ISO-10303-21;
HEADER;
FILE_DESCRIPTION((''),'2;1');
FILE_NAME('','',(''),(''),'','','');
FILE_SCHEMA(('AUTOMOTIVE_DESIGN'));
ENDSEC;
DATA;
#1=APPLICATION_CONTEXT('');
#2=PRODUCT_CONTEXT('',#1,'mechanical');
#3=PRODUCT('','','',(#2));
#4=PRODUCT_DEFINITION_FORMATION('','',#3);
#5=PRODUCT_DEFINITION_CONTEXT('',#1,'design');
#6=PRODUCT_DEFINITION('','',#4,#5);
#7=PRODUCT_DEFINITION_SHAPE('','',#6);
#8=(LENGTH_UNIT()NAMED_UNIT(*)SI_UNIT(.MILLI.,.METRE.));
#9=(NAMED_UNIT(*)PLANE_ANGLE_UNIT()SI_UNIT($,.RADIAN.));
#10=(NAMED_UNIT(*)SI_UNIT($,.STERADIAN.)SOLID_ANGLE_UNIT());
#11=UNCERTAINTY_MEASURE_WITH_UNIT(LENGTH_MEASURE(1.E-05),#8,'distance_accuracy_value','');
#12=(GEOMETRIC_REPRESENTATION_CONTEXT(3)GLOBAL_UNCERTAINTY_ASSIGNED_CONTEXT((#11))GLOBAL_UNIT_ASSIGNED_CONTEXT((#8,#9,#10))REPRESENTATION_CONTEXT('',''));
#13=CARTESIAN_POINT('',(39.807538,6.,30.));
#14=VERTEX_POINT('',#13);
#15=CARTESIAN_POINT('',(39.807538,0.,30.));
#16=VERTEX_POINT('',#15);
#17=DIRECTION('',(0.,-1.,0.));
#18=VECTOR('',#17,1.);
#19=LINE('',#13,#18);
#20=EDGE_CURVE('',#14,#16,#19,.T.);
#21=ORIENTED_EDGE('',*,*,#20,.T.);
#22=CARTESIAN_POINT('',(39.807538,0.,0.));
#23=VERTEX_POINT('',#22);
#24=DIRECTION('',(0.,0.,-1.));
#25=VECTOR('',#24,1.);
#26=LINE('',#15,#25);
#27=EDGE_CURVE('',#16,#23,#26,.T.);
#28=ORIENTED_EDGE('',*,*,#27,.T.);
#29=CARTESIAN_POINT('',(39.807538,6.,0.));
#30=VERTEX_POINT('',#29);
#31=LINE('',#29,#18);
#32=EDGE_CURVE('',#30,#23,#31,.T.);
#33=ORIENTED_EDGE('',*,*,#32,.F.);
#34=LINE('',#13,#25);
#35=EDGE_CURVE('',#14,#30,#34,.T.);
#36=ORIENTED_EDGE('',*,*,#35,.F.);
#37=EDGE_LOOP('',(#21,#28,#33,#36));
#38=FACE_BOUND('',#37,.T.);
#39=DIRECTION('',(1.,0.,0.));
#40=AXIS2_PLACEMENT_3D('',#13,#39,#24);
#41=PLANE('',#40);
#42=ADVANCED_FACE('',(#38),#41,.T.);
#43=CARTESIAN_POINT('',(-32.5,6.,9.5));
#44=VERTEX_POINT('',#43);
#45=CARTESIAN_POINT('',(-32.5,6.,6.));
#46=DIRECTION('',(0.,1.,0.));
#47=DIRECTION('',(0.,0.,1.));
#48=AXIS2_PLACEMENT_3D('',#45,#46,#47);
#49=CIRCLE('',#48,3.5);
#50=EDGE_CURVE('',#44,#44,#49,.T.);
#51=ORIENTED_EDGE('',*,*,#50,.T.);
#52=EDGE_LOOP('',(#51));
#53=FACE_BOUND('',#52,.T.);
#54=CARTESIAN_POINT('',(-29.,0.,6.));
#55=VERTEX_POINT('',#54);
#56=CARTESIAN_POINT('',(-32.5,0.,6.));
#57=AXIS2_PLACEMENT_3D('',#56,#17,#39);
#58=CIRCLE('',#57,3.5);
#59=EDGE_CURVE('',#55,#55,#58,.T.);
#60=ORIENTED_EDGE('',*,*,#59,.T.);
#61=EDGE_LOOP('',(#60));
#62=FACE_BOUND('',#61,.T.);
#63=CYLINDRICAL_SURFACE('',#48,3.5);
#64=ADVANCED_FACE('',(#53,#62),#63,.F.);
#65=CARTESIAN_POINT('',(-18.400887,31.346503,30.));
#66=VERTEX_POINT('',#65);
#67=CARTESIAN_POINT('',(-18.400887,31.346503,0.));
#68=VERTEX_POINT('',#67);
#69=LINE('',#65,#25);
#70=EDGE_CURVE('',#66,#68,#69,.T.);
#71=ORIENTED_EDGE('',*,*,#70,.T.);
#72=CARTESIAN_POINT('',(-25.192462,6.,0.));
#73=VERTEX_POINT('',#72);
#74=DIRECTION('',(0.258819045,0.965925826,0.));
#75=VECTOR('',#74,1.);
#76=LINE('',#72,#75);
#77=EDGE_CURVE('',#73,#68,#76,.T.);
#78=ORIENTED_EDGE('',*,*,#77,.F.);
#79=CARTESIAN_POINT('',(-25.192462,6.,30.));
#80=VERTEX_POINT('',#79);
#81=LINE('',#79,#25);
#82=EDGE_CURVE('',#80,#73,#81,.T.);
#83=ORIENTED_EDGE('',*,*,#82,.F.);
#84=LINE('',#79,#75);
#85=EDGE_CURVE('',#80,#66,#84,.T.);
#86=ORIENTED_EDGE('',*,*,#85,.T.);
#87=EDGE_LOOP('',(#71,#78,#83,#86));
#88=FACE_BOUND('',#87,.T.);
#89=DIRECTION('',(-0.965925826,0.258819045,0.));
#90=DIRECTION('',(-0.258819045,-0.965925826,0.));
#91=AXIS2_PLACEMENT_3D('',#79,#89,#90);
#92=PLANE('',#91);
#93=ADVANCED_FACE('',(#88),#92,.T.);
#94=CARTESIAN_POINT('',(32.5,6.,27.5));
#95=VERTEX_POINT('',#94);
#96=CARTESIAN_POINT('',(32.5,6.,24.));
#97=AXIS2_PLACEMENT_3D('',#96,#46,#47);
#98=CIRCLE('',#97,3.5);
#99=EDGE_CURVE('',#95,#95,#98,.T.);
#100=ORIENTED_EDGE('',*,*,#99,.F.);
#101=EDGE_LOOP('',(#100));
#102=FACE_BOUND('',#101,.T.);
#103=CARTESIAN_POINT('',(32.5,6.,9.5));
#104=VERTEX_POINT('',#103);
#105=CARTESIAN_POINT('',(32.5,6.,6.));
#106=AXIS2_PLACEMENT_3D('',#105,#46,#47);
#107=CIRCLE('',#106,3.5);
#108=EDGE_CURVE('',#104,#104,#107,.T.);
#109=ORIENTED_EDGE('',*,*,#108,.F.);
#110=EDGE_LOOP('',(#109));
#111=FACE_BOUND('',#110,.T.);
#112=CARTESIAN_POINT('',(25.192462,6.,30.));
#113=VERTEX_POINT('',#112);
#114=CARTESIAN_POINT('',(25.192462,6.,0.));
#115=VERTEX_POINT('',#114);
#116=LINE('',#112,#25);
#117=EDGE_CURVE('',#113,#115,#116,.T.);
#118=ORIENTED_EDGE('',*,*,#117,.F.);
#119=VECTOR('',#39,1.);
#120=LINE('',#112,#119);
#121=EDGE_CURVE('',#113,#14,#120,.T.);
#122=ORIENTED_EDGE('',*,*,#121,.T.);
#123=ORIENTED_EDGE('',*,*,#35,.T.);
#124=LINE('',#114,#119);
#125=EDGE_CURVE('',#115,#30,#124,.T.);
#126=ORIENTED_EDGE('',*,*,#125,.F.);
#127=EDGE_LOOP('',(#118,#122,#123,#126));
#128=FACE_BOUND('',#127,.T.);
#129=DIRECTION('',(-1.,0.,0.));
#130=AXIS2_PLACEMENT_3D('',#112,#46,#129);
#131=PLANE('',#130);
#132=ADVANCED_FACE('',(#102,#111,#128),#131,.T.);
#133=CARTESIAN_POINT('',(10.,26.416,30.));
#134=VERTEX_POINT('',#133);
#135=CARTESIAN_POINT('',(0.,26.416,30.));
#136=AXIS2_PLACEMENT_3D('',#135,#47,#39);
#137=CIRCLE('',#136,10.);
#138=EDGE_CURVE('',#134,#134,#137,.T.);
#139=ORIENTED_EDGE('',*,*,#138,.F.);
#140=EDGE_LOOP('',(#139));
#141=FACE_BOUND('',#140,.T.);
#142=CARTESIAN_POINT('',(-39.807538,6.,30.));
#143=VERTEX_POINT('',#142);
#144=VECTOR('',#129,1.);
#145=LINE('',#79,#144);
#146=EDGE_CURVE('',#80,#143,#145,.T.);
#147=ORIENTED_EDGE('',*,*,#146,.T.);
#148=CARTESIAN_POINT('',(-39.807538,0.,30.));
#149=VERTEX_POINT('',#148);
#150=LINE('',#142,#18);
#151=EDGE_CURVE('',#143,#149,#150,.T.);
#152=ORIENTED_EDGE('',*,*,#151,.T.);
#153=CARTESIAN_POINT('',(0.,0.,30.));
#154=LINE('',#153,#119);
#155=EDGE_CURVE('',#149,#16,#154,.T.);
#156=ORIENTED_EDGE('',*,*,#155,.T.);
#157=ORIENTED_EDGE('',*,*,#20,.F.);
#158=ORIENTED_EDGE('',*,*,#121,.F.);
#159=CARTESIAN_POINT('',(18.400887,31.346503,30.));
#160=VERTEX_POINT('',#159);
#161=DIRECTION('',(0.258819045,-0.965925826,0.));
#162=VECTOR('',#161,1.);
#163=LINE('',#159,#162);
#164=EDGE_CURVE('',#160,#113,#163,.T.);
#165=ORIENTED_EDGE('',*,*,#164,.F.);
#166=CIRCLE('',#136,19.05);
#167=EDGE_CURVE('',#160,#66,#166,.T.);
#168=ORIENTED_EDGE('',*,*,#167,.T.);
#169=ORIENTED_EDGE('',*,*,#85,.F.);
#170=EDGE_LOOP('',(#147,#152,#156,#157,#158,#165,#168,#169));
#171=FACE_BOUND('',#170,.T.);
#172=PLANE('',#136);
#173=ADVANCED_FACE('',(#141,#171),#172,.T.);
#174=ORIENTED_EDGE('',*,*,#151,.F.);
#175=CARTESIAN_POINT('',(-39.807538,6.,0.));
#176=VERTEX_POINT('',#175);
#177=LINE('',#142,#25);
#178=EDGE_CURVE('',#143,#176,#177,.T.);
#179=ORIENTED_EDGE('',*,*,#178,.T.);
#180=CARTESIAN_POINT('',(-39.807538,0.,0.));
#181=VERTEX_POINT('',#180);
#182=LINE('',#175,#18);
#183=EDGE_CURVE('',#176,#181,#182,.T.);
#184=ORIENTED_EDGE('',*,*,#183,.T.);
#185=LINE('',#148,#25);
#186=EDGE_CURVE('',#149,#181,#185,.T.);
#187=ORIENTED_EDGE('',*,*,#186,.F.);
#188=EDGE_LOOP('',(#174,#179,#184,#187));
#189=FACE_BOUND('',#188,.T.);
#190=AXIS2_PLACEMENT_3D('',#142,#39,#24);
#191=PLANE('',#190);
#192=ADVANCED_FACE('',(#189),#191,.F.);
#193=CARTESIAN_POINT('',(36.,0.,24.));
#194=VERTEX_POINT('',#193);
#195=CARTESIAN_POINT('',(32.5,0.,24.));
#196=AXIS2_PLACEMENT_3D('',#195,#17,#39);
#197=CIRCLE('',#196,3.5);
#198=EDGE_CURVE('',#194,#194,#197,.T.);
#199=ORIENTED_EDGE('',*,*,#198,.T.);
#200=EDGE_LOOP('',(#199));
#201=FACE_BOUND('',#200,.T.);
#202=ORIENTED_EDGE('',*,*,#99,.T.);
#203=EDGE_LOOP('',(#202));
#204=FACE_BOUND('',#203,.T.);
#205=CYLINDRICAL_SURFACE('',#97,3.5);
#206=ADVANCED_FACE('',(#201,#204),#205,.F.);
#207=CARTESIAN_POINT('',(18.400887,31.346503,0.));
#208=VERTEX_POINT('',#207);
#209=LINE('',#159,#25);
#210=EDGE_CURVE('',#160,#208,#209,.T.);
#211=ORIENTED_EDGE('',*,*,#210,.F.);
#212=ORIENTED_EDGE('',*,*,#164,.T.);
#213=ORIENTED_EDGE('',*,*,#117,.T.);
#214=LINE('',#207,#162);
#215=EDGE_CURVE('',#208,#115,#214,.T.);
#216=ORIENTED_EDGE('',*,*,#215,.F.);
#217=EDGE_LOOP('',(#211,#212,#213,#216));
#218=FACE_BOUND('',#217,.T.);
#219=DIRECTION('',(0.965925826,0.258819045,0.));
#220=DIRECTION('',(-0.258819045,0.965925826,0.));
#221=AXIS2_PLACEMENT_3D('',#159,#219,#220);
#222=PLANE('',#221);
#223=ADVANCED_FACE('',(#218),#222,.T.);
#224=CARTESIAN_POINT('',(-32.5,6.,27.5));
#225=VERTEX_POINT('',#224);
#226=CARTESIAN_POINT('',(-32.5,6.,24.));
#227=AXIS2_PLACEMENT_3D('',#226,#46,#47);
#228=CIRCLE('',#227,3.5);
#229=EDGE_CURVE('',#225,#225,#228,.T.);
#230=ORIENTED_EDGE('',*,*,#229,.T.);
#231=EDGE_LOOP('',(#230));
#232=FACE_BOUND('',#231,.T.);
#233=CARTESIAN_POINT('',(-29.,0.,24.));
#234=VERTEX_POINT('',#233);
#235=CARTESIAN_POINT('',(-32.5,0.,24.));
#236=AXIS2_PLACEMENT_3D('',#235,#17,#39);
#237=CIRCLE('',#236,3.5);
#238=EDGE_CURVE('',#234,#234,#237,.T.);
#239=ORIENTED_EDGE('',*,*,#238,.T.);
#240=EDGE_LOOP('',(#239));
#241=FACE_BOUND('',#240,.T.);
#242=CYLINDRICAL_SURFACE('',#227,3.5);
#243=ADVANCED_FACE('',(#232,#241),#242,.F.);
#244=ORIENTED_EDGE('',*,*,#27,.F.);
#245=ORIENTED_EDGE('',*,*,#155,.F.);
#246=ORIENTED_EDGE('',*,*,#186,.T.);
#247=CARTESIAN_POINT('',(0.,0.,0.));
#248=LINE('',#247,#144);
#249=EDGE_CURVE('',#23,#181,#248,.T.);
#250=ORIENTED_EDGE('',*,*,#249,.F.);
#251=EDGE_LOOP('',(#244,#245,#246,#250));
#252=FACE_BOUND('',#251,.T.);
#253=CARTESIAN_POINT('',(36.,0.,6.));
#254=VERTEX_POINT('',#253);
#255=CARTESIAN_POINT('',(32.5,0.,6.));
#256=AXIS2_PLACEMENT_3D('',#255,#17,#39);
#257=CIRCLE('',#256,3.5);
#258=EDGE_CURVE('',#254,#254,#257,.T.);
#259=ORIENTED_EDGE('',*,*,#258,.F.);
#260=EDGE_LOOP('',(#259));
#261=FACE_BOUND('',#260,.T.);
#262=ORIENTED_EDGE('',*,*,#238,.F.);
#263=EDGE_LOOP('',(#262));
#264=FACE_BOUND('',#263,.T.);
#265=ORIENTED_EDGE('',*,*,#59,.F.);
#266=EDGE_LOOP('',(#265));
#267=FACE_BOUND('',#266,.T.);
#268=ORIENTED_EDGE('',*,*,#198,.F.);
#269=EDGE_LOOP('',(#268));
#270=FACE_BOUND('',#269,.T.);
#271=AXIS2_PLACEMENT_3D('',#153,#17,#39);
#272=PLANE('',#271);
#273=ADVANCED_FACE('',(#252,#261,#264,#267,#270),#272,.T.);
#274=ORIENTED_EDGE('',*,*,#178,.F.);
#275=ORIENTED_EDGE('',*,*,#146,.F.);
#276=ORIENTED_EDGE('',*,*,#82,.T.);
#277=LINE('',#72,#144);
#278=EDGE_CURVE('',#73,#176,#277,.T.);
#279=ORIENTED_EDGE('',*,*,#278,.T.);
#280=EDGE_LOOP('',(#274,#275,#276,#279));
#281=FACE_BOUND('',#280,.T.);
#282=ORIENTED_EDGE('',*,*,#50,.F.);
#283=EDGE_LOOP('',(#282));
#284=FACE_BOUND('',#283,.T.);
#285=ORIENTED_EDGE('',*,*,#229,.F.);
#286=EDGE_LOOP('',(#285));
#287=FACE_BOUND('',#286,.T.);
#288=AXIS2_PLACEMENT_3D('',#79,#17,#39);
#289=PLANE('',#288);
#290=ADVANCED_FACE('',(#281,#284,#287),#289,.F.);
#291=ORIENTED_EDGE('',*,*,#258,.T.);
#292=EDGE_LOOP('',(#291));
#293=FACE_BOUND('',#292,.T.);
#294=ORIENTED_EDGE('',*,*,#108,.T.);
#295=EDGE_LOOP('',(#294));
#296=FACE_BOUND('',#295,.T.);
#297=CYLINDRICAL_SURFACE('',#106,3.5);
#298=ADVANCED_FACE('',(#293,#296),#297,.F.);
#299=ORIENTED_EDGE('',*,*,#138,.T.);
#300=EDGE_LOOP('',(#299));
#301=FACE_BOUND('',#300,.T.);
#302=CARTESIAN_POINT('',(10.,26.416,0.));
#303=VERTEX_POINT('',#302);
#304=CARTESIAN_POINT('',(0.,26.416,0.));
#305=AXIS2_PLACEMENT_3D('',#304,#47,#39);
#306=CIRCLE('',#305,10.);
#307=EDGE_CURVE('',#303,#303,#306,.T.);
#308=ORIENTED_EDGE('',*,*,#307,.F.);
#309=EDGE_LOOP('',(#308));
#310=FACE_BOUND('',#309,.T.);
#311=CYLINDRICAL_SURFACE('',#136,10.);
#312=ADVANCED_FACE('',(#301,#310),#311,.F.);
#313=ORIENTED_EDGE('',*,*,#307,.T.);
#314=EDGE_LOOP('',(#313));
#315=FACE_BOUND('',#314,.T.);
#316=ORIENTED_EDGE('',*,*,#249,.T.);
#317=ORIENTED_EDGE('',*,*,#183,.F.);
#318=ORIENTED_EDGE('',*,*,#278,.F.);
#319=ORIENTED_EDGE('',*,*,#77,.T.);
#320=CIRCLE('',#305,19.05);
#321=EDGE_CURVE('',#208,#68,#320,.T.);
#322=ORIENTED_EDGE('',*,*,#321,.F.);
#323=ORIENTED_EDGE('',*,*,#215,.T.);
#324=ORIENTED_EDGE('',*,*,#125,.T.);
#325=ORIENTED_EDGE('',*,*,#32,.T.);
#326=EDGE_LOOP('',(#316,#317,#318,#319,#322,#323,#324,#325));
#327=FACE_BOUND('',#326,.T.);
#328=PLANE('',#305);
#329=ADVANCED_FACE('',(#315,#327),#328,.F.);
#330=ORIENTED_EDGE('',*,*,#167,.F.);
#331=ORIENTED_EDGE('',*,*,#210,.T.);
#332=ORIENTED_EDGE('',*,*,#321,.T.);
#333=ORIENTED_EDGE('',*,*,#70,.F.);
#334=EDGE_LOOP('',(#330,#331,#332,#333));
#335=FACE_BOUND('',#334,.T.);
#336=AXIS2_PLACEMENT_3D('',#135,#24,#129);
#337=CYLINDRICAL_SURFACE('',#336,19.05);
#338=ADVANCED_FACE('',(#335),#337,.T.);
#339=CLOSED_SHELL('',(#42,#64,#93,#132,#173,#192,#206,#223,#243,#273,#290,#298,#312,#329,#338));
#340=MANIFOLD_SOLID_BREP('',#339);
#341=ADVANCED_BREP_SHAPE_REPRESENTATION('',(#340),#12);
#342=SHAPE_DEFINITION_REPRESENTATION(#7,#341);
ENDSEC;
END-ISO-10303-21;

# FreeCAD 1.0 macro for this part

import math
import FreeCAD as App
import Part
import Sketcher
Q = App.Units.Quantity


def add_polygon(sketch, points):
    """Adds a closed chain of lines whose ends are joined by coincident constraints."""
    first, n = sketch.GeometryCount, len(points)
    for a, b in zip(points, points[1:] + points[:1]):
        sketch.addGeometry(Part.LineSegment(App.Vector(*a, 0), App.Vector(*b, 0)), False)
    for i in range(n):
        sketch.addConstraint(Sketcher.Constraint("Coincident", first + i, 2, first + (i + 1) % n, 1))

doc = App.newDocument("Part")
body = doc.addObject("PartDesign::Body", "Body")

sketch1 = body.newObject("Sketcher::SketchObject", "Sketch")
sketch1.AttachmentSupport = (doc.getObject("XY_Plane"), [""])
sketch1.MapMode = "FlatFace"
sketch1.addGeometry([
    Part.LineSegment(App.Vector(-40, 6, 0), App.Vector(-40, 0, 0)),
    Part.LineSegment(App.Vector(-40, 0, 0), App.Vector(40, 0, 0)),
    Part.LineSegment(App.Vector(40, 0, 0), App.Vector(40, 6, 0)),
    Part.LineSegment(App.Vector(40, 6, 0), App.Vector(25, 6, 0)),
    Part.LineSegment(App.Vector(25, 6, 0), App.Vector(18, 31, 0)),
    Part.ArcOfCircle(Part.Circle(App.Vector(0, 26, 0), App.Vector(0, 0, 1), 19), math.radians(15), math.radians(165)),
    Part.LineSegment(App.Vector(-18, 31, 0), App.Vector(-25, 6, 0)),
    Part.LineSegment(App.Vector(-25, 6, 0), App.Vector(-40, 6, 0)),
], False)
sketch1.addConstraint([
    Sketcher.Constraint("Coincident", 0, 2, 1, 1),
    Sketcher.Constraint("Coincident", 1, 2, 2, 1),
    Sketcher.Constraint("Coincident", 2, 2, 3, 1),
    Sketcher.Constraint("Coincident", 3, 2, 4, 1),
    Sketcher.Constraint("Tangent", 4, 2, 5, 1),
    Sketcher.Constraint("Tangent", 5, 2, 6, 1),
    Sketcher.Constraint("Coincident", 6, 2, 7, 1),
    Sketcher.Constraint("Coincident", 7, 2, 0, 1),
    Sketcher.Constraint("Vertical", 0),
    Sketcher.Constraint("Horizontal", 1),
    Sketcher.Constraint("Vertical", 2),
    Sketcher.Constraint("Horizontal", 3),
    Sketcher.Constraint("Horizontal", 7),
    Sketcher.Constraint("Symmetric", 0, 2, 1, 2, -1, 1),
    Sketcher.Constraint("Symmetric", 4, 2, 5, 2, -2),
    Sketcher.Constraint("Horizontal", 3, 2, 6, 2),
    Sketcher.Constraint("DistanceY", 0, 2, 0, 1, 6.0),
    Sketcher.Constraint("Angle", 4, Q("105 deg")),
    Sketcher.Constraint("Radius", 5, 19.05),
    Sketcher.Constraint("DistanceX", 0, 2, 3, 2, 65.0),
    Sketcher.Constraint("DistanceY", -1, 1, 5, 3, 26.416),
])
pad1 = body.newObject("PartDesign::Pad", "Pad")
pad1.Profile = sketch1
pad1.Length = 30

sketch2 = body.newObject("Sketcher::SketchObject", "Sketch001")
sketch2.AttachmentSupport = (doc.getObject("XY_Plane"), [""])
sketch2.MapMode = "FlatFace"
sketch2.AttachmentOffset = App.Placement(App.Vector(0, 0, 30), App.Rotation())
sketch2.addGeometry(Part.Circle(App.Vector(0, 26, 0), App.Vector(0, 0, 1), 10), False)
sketch2.addConstraint([
    Sketcher.Constraint("PointOnObject", 0, 3, -2),
    Sketcher.Constraint("Diameter", 0, 20.0),
    Sketcher.Constraint("DistanceY", -1, 1, 0, 3, 26.416),
])
doc.recompute()
hole = body.newObject("PartDesign::Hole", "Hole")
hole.Profile = sketch2
hole.ThreadType = "None"
hole.Diameter = 20
hole.DepthType = "Dimension"
hole.Depth = 74.0791
hole.DrillPoint = "Angled"
hole.DrillPointAngle = 118

sketch3 = body.newObject("Sketcher::SketchObject", "Sketch002")
sketch3.AttachmentSupport = (doc.getObject("YZ_Plane"), [""])
sketch3.MapMode = "FlatFace"
sketch3.AttachmentOffset = App.Placement(App.Vector(0, 0, -32.5), App.Rotation())
add_polygon(sketch3, [(-15.1, 6), (6, 6), (6, 9.5), (-13, 9.5)])
sketch3.addGeometry(Part.LineSegment(App.Vector(6, 6, 0), App.Vector(-15.1, 6, 0)), True)
sketch3.addConstraint([
    Sketcher.Constraint("Horizontal", 0),
    Sketcher.Constraint("Vertical", 1),
    Sketcher.Constraint("Horizontal", 2),
    Sketcher.Constraint("Horizontal", 4),
    Sketcher.Constraint("Coincident", 4, 1, 0, 2),
    Sketcher.Constraint("Equal", 0, 4),
    Sketcher.Constraint("DistanceX", 2, 2, 2, 1, 19.0),
    Sketcher.Constraint("Angle", 3, Q("-121 deg")),
    Sketcher.Constraint("DistanceY", 1, 1, 1, 2, 3.5),
    Sketcher.Constraint("DistanceX", -1, 1, 0, 2, 6.0),
    Sketcher.Constraint("DistanceY", -1, 1, 0, 2, 6.0),
])
groove = body.newObject("PartDesign::Groove", "Groove")
groove.Profile = sketch3
groove.ReferenceAxis = (sketch3, ["Axis0"])
groove.Angle = 360
doc.recompute()

linearpattern = body.newObject("PartDesign::LinearPattern", "LinearPattern")
linearpattern.Originals = [groove]
linearpattern.Direction = (doc.getObject("Z_Axis"), [""])
linearpattern.Mode = "offset"
linearpattern.Offset = 18
linearpattern.Occurrences = 2
body.Tip = linearpattern
doc.recompute()

mirrored = body.newObject("PartDesign::Mirrored", "Mirrored")
mirrored.Originals = [groove]
mirrored.MirrorPlane = (doc.getObject("YZ_Plane"), [""])
body.Tip = mirrored

sketch4 = body.newObject("Sketcher::SketchObject", "Sketch003")
sketch4.AttachmentSupport = (doc.getObject("YZ_Plane"), [""])
sketch4.MapMode = "FlatFace"
sketch4.AttachmentOffset = App.Placement(App.Vector(0, 0, 32.5), App.Rotation())
add_polygon(sketch4, [(6, 24), (-15.1, 24), (-13, 27.5), (6, 27.5)])
sketch4.addGeometry(Part.LineSegment(App.Vector(-15.1, 24, 0), App.Vector(6, 24, 0)), True)
sketch4.addConstraint([
    Sketcher.Constraint("Horizontal", 0),
    Sketcher.Constraint("Horizontal", 2),
    Sketcher.Constraint("Vertical", 3),
    Sketcher.Constraint("Horizontal", 4),
    Sketcher.Constraint("Coincident", 4, 1, 0, 2),
    Sketcher.Constraint("Vertical", 2, 2, 4, 2),
    Sketcher.Constraint("DistanceX", 2, 1, 2, 2, 19.0),
    Sketcher.Constraint("Angle", 1, Q("59 deg")),
    Sketcher.Constraint("DistanceY", 3, 2, 3, 1, 3.5),
    Sketcher.Constraint("DistanceY", -1, 1, 0, 2, 24.0),
    Sketcher.Constraint("DistanceX", 1, 2, -1, 1, 13.0),
])
groove2 = body.newObject("PartDesign::Groove", "Groove001")
groove2.Profile = sketch4
groove2.ReferenceAxis = (sketch4, ["Axis0"])
groove2.Angle = 360

doc.recompute()
